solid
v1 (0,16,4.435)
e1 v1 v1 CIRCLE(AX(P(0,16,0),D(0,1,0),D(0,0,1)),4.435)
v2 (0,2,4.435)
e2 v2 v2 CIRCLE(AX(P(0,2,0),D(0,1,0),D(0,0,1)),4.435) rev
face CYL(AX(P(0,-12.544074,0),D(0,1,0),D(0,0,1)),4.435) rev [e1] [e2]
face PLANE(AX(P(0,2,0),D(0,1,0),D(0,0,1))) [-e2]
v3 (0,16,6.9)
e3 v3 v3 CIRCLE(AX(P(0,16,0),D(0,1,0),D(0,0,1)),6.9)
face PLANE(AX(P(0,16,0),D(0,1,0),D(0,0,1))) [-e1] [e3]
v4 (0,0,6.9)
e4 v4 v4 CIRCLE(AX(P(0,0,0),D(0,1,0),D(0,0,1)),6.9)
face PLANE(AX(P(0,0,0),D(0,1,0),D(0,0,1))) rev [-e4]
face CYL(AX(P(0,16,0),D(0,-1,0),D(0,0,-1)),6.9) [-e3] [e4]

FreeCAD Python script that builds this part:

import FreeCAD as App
import Part
import Sketcher
Q = App.Units.Quantity

doc = App.newDocument("Part")
body = doc.addObject("PartDesign::Body", "Body")

# Sketch on XZ plane
sketch1 = doc.addObject("Sketcher::SketchObject", "Sketch")
body.addObject(sketch1)
sketch1.AttachmentSupport = (doc.XZ_Plane, [""])
sketch1.MapMode = "FlatFace"
sketch1.addGeometry(Part.Circle(App.Vector(0, 0, 0), App.Vector(0, 0, 1), 6.9), False)
sketch1.addConstraint(Sketcher.Constraint("Coincident", 0, 3, -1, 1))
sketch1.addConstraint(Sketcher.Constraint("Diameter", 0, Q("13.8 mm")))
pad1 = doc.addObject("PartDesign::Pad", "Pad")
body.addObject(pad1)
pad1.Profile = sketch1
pad1.Length = 16
pad1.Reversed = True

# Sketch on XZ plane
sketch2 = doc.addObject("Sketcher::SketchObject", "Sketch001")
body.addObject(sketch2)
sketch2.AttachmentSupport = (doc.XZ_Plane, [""])
sketch2.MapMode = "FlatFace"
sketch2.AttachmentOffset = App.Placement(App.Vector(0, 0, -16), App.Rotation())
sketch2.addGeometry(Part.Circle(App.Vector(0, 0, 0), App.Vector(0, 0, 1), 4.435), False)
sketch2.addConstraint(Sketcher.Constraint("Coincident", 0, 3, -1, 1))
sketch2.addConstraint(Sketcher.Constraint("Diameter", 0, Q("8.87 mm")))
pocket1 = doc.addObject("PartDesign::Pocket", "Pocket")
body.addObject(pocket1)
pocket1.Profile = sketch2
pocket1.Length = 14
pocket1.Reversed = True

doc.recompute()
